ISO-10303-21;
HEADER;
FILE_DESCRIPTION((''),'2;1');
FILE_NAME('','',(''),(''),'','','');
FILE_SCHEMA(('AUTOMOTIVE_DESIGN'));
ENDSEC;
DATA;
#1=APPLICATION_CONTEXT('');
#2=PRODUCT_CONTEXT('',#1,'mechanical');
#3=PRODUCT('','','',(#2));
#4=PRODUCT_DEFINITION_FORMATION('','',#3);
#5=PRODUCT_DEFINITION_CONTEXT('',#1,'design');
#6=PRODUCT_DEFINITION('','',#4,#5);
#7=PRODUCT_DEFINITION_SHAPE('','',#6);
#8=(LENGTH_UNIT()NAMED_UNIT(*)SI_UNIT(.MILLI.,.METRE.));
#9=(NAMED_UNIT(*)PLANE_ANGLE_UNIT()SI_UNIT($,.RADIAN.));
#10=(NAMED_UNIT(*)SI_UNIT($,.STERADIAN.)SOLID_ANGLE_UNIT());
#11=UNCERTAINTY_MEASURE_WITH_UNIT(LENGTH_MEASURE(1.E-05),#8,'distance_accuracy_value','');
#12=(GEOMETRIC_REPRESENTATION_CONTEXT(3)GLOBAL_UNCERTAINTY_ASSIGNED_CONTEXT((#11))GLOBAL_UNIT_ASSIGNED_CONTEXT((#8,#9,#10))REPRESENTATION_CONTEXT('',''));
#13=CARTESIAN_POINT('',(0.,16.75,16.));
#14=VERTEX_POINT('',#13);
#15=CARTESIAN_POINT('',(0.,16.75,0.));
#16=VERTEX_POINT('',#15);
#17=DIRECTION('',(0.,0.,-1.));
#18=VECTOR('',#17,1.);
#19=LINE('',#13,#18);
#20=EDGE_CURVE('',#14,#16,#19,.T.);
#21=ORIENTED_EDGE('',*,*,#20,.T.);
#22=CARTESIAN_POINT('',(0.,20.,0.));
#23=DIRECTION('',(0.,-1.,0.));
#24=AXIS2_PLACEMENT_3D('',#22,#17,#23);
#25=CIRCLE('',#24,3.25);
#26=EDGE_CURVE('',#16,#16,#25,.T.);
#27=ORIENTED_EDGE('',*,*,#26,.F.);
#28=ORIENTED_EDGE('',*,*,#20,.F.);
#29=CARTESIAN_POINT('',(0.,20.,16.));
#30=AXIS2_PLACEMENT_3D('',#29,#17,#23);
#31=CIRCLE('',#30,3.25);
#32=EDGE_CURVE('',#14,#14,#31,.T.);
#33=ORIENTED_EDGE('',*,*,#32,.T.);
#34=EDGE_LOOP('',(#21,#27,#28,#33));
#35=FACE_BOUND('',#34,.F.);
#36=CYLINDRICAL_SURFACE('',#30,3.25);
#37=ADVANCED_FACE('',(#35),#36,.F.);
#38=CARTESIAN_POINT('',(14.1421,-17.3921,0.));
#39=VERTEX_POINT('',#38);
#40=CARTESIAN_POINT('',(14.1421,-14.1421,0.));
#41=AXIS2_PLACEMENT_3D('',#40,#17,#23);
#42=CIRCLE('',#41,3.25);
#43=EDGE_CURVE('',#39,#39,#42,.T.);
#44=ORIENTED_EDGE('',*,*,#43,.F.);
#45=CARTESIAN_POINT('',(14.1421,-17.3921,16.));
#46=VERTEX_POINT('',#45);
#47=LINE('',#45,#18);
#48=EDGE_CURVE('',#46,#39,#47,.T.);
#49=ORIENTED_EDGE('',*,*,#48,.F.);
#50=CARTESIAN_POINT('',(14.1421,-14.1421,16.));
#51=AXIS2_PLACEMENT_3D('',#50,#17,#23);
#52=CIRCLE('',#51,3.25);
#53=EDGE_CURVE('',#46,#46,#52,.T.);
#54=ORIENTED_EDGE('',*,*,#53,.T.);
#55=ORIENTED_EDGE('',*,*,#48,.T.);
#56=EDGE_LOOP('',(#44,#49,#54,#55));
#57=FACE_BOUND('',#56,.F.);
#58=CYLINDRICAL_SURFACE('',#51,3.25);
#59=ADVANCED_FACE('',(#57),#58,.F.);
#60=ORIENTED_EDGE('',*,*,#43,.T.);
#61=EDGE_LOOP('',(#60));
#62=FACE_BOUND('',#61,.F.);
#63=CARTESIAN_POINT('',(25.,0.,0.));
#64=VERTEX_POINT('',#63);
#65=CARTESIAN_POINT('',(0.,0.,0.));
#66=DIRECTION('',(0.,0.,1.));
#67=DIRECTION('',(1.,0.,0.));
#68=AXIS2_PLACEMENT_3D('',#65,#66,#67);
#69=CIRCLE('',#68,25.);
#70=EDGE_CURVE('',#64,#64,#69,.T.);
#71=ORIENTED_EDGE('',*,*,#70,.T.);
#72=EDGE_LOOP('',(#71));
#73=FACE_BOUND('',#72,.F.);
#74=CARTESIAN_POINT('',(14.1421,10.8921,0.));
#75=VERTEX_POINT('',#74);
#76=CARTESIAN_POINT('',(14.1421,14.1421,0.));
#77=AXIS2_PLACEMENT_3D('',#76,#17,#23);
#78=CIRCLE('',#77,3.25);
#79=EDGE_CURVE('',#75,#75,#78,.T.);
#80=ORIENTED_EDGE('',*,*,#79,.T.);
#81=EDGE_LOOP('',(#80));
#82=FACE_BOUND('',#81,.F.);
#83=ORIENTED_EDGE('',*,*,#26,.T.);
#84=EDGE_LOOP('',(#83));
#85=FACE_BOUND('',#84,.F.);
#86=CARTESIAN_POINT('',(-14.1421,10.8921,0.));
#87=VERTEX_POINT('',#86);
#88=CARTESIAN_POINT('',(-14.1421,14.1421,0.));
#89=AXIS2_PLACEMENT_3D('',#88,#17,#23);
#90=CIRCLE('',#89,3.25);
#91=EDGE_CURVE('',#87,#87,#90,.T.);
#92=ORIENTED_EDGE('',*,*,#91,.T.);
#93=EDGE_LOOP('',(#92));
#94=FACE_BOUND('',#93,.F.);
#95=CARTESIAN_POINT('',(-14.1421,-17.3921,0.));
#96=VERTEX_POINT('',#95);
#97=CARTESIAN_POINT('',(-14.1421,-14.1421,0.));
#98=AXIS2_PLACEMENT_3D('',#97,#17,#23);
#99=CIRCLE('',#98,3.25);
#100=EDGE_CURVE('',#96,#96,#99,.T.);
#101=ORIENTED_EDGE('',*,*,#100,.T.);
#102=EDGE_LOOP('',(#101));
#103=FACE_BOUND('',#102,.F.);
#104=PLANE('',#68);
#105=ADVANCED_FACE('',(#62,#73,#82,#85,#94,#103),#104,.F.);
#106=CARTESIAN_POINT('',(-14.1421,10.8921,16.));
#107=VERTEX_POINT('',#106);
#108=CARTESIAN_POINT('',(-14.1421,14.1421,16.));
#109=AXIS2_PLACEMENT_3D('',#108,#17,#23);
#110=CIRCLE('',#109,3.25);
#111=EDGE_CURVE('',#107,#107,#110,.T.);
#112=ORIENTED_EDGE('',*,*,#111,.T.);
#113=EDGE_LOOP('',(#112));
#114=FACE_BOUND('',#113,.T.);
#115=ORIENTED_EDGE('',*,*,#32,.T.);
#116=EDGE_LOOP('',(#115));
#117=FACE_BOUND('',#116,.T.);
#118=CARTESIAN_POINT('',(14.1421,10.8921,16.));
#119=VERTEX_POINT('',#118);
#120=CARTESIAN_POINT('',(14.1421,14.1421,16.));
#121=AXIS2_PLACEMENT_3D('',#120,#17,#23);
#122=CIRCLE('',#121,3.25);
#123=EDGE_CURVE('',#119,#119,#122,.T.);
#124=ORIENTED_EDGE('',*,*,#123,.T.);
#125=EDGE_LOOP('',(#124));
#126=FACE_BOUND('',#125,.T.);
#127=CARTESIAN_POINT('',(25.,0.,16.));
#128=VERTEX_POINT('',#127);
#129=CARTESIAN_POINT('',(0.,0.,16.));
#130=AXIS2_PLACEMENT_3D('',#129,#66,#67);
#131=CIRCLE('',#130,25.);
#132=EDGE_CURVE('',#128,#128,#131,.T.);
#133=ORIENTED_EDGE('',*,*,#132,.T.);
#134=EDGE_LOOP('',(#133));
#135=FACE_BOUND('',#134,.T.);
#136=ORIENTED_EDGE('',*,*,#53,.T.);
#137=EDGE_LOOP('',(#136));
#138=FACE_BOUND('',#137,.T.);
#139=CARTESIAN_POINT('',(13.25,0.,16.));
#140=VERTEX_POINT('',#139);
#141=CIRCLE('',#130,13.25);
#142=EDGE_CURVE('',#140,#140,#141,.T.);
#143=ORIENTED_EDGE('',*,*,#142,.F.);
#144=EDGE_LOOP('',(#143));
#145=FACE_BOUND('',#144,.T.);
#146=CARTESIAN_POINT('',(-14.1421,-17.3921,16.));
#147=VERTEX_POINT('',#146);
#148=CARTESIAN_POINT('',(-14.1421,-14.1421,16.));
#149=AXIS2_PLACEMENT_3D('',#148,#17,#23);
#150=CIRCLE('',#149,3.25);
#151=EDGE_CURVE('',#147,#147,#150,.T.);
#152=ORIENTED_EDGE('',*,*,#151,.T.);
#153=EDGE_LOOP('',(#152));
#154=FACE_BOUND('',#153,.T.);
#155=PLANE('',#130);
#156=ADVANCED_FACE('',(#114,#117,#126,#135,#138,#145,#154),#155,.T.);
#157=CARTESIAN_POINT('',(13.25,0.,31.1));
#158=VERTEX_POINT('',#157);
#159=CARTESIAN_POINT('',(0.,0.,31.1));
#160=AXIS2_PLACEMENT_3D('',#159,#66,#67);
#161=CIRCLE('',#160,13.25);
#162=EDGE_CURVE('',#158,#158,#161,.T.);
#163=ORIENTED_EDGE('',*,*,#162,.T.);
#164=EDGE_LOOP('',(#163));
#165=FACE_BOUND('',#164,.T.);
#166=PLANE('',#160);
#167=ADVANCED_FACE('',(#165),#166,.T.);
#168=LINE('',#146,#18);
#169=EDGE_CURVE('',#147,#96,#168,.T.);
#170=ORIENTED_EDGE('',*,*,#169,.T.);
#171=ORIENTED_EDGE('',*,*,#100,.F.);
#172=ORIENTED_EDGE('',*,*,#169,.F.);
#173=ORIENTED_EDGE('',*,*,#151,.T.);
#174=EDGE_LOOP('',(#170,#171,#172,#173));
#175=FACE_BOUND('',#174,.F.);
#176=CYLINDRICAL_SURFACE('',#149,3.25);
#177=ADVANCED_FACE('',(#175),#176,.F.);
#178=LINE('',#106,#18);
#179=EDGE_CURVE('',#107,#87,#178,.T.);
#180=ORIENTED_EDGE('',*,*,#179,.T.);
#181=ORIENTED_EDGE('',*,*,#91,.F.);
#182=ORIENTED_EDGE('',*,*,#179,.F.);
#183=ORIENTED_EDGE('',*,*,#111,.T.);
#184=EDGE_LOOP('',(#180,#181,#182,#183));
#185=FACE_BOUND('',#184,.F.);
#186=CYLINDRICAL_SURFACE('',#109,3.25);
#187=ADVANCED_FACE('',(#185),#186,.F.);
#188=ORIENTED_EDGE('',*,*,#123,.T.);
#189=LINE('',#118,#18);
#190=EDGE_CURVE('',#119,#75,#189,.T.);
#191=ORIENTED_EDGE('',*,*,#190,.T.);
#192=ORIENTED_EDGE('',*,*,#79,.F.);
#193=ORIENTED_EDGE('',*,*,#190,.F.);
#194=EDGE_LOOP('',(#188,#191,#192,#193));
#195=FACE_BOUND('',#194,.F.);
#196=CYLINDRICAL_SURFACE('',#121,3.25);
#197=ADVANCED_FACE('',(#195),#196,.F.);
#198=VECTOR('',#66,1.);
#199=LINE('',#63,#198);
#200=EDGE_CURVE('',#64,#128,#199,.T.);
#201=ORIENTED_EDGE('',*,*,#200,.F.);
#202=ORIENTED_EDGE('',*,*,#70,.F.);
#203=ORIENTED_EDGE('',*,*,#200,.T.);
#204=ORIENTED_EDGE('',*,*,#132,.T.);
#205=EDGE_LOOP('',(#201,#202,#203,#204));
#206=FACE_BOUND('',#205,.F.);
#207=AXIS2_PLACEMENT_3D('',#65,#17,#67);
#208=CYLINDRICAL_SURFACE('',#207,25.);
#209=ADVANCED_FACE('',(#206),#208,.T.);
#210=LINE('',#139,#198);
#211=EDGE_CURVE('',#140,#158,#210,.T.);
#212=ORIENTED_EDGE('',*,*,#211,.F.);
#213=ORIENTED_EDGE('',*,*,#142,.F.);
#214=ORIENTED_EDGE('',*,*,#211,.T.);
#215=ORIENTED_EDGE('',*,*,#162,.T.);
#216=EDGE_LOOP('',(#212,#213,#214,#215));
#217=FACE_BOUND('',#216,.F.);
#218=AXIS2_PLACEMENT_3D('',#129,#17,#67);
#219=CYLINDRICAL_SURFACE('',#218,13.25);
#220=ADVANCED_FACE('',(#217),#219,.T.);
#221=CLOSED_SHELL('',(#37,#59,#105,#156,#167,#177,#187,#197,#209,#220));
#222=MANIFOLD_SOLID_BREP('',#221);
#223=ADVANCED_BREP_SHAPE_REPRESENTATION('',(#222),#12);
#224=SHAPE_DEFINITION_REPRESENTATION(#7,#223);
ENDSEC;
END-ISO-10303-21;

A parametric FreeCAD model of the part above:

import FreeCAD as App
import Part
import Sketcher
Q = App.Units.Quantity

doc = App.newDocument("Part")
body = doc.addObject("PartDesign::Body", "Body")

sketch1 = doc.addObject("Sketcher::SketchObject", "Sketch")
body.addObject(sketch1)
sketch1.AttachmentSupport = (doc.XY_Plane, [""])
sketch1.MapMode = "FlatFace"
sketch1.addGeometry(Part.Circle(App.Vector(0, 0, 0), App.Vector(0, 0, 1), 25), False)
sketch1.addConstraint([
    Sketcher.Constraint("Coincident", 0, 3, -1, 1),
    Sketcher.Constraint("Diameter", 0, Q("50 mm")),
])
pad1 = doc.addObject("PartDesign::Pad", "Pad")
body.addObject(pad1)
pad1.Profile = sketch1
pad1.Length = 16

sketch2 = doc.addObject("Sketcher::SketchObject", "Sketch001")
body.addObject(sketch2)
sketch2.AttachmentSupport = (doc.XY_Plane, [""])
sketch2.MapMode = "FlatFace"
sketch2.AttachmentOffset = App.Placement(App.Vector(0, 0, 16), App.Rotation())
sketch2.addGeometry([
    Part.Circle(App.Vector(-14.1, 14.1, 0), App.Vector(0, 0, 1), 3.2),
    Part.Circle(App.Vector(-14.1, -14.1, 0), App.Vector(0, 0, 1), 3.2),
    Part.Circle(App.Vector(14.1, -14.1, 0), App.Vector(0, 0, 1), 3.2),
    Part.Circle(App.Vector(14.1, 14.1, 0), App.Vector(0, 0, 1), 3.2),
    Part.Circle(App.Vector(0, 20, 0), App.Vector(0, 0, 1), 3.2),
], False)
sketch2.addConstraint([
    Sketcher.Constraint("Equal", 0, 1),
    Sketcher.Constraint("Equal", 1, 2),
    Sketcher.Constraint("Equal", 2, 3),
    Sketcher.Constraint("Equal", 3, 4),
    Sketcher.Constraint("Symmetric", 0, 3, 2, 3, -1, 1),
    Sketcher.Constraint("Symmetric", 1, 3, 3, 3, -1, 1),
    Sketcher.Constraint("Symmetric", 1, 3, 2, 3, -2),
    Sketcher.Constraint("PointOnObject", 4, 3, -2),
    Sketcher.Constraint("Diameter", 0, Q("6.5 mm")),
    Sketcher.Constraint("DistanceY", -1, 1, 4, 3, Q("20 mm")),
    Sketcher.Constraint("DistanceX", 0, 3, -1, 1, Q("14.142 mm")),
    Sketcher.Constraint("DistanceY", -1, 1, 0, 3, Q("14.142 mm")),
])
doc.recompute()
hole = doc.addObject("PartDesign::Hole", "Hole")
body.addObject(hole)
hole.Profile = sketch2
hole.ThreadType = "None"
hole.Diameter = 6.5
hole.DepthType = "ThroughAll"

sketch3 = doc.addObject("Sketcher::SketchObject", "Sketch002")
body.addObject(sketch3)
sketch3.AttachmentSupport = (doc.XY_Plane, [""])
sketch3.MapMode = "FlatFace"
sketch3.AttachmentOffset = App.Placement(App.Vector(0, 0, 16), App.Rotation())
sketch3.addGeometry(Part.Circle(App.Vector(0, 0, 0), App.Vector(0, 0, 1), 13), False)
sketch3.addConstraint([
    Sketcher.Constraint("Coincident", 0, 3, -1, 1),
    Sketcher.Constraint("Diameter", 0, Q("26.5 mm")),
])
pad2 = doc.addObject("PartDesign::Pad", "Pad001")
body.addObject(pad2)
pad2.Profile = sketch3
pad2.Length = 15.1

doc.recompute()
